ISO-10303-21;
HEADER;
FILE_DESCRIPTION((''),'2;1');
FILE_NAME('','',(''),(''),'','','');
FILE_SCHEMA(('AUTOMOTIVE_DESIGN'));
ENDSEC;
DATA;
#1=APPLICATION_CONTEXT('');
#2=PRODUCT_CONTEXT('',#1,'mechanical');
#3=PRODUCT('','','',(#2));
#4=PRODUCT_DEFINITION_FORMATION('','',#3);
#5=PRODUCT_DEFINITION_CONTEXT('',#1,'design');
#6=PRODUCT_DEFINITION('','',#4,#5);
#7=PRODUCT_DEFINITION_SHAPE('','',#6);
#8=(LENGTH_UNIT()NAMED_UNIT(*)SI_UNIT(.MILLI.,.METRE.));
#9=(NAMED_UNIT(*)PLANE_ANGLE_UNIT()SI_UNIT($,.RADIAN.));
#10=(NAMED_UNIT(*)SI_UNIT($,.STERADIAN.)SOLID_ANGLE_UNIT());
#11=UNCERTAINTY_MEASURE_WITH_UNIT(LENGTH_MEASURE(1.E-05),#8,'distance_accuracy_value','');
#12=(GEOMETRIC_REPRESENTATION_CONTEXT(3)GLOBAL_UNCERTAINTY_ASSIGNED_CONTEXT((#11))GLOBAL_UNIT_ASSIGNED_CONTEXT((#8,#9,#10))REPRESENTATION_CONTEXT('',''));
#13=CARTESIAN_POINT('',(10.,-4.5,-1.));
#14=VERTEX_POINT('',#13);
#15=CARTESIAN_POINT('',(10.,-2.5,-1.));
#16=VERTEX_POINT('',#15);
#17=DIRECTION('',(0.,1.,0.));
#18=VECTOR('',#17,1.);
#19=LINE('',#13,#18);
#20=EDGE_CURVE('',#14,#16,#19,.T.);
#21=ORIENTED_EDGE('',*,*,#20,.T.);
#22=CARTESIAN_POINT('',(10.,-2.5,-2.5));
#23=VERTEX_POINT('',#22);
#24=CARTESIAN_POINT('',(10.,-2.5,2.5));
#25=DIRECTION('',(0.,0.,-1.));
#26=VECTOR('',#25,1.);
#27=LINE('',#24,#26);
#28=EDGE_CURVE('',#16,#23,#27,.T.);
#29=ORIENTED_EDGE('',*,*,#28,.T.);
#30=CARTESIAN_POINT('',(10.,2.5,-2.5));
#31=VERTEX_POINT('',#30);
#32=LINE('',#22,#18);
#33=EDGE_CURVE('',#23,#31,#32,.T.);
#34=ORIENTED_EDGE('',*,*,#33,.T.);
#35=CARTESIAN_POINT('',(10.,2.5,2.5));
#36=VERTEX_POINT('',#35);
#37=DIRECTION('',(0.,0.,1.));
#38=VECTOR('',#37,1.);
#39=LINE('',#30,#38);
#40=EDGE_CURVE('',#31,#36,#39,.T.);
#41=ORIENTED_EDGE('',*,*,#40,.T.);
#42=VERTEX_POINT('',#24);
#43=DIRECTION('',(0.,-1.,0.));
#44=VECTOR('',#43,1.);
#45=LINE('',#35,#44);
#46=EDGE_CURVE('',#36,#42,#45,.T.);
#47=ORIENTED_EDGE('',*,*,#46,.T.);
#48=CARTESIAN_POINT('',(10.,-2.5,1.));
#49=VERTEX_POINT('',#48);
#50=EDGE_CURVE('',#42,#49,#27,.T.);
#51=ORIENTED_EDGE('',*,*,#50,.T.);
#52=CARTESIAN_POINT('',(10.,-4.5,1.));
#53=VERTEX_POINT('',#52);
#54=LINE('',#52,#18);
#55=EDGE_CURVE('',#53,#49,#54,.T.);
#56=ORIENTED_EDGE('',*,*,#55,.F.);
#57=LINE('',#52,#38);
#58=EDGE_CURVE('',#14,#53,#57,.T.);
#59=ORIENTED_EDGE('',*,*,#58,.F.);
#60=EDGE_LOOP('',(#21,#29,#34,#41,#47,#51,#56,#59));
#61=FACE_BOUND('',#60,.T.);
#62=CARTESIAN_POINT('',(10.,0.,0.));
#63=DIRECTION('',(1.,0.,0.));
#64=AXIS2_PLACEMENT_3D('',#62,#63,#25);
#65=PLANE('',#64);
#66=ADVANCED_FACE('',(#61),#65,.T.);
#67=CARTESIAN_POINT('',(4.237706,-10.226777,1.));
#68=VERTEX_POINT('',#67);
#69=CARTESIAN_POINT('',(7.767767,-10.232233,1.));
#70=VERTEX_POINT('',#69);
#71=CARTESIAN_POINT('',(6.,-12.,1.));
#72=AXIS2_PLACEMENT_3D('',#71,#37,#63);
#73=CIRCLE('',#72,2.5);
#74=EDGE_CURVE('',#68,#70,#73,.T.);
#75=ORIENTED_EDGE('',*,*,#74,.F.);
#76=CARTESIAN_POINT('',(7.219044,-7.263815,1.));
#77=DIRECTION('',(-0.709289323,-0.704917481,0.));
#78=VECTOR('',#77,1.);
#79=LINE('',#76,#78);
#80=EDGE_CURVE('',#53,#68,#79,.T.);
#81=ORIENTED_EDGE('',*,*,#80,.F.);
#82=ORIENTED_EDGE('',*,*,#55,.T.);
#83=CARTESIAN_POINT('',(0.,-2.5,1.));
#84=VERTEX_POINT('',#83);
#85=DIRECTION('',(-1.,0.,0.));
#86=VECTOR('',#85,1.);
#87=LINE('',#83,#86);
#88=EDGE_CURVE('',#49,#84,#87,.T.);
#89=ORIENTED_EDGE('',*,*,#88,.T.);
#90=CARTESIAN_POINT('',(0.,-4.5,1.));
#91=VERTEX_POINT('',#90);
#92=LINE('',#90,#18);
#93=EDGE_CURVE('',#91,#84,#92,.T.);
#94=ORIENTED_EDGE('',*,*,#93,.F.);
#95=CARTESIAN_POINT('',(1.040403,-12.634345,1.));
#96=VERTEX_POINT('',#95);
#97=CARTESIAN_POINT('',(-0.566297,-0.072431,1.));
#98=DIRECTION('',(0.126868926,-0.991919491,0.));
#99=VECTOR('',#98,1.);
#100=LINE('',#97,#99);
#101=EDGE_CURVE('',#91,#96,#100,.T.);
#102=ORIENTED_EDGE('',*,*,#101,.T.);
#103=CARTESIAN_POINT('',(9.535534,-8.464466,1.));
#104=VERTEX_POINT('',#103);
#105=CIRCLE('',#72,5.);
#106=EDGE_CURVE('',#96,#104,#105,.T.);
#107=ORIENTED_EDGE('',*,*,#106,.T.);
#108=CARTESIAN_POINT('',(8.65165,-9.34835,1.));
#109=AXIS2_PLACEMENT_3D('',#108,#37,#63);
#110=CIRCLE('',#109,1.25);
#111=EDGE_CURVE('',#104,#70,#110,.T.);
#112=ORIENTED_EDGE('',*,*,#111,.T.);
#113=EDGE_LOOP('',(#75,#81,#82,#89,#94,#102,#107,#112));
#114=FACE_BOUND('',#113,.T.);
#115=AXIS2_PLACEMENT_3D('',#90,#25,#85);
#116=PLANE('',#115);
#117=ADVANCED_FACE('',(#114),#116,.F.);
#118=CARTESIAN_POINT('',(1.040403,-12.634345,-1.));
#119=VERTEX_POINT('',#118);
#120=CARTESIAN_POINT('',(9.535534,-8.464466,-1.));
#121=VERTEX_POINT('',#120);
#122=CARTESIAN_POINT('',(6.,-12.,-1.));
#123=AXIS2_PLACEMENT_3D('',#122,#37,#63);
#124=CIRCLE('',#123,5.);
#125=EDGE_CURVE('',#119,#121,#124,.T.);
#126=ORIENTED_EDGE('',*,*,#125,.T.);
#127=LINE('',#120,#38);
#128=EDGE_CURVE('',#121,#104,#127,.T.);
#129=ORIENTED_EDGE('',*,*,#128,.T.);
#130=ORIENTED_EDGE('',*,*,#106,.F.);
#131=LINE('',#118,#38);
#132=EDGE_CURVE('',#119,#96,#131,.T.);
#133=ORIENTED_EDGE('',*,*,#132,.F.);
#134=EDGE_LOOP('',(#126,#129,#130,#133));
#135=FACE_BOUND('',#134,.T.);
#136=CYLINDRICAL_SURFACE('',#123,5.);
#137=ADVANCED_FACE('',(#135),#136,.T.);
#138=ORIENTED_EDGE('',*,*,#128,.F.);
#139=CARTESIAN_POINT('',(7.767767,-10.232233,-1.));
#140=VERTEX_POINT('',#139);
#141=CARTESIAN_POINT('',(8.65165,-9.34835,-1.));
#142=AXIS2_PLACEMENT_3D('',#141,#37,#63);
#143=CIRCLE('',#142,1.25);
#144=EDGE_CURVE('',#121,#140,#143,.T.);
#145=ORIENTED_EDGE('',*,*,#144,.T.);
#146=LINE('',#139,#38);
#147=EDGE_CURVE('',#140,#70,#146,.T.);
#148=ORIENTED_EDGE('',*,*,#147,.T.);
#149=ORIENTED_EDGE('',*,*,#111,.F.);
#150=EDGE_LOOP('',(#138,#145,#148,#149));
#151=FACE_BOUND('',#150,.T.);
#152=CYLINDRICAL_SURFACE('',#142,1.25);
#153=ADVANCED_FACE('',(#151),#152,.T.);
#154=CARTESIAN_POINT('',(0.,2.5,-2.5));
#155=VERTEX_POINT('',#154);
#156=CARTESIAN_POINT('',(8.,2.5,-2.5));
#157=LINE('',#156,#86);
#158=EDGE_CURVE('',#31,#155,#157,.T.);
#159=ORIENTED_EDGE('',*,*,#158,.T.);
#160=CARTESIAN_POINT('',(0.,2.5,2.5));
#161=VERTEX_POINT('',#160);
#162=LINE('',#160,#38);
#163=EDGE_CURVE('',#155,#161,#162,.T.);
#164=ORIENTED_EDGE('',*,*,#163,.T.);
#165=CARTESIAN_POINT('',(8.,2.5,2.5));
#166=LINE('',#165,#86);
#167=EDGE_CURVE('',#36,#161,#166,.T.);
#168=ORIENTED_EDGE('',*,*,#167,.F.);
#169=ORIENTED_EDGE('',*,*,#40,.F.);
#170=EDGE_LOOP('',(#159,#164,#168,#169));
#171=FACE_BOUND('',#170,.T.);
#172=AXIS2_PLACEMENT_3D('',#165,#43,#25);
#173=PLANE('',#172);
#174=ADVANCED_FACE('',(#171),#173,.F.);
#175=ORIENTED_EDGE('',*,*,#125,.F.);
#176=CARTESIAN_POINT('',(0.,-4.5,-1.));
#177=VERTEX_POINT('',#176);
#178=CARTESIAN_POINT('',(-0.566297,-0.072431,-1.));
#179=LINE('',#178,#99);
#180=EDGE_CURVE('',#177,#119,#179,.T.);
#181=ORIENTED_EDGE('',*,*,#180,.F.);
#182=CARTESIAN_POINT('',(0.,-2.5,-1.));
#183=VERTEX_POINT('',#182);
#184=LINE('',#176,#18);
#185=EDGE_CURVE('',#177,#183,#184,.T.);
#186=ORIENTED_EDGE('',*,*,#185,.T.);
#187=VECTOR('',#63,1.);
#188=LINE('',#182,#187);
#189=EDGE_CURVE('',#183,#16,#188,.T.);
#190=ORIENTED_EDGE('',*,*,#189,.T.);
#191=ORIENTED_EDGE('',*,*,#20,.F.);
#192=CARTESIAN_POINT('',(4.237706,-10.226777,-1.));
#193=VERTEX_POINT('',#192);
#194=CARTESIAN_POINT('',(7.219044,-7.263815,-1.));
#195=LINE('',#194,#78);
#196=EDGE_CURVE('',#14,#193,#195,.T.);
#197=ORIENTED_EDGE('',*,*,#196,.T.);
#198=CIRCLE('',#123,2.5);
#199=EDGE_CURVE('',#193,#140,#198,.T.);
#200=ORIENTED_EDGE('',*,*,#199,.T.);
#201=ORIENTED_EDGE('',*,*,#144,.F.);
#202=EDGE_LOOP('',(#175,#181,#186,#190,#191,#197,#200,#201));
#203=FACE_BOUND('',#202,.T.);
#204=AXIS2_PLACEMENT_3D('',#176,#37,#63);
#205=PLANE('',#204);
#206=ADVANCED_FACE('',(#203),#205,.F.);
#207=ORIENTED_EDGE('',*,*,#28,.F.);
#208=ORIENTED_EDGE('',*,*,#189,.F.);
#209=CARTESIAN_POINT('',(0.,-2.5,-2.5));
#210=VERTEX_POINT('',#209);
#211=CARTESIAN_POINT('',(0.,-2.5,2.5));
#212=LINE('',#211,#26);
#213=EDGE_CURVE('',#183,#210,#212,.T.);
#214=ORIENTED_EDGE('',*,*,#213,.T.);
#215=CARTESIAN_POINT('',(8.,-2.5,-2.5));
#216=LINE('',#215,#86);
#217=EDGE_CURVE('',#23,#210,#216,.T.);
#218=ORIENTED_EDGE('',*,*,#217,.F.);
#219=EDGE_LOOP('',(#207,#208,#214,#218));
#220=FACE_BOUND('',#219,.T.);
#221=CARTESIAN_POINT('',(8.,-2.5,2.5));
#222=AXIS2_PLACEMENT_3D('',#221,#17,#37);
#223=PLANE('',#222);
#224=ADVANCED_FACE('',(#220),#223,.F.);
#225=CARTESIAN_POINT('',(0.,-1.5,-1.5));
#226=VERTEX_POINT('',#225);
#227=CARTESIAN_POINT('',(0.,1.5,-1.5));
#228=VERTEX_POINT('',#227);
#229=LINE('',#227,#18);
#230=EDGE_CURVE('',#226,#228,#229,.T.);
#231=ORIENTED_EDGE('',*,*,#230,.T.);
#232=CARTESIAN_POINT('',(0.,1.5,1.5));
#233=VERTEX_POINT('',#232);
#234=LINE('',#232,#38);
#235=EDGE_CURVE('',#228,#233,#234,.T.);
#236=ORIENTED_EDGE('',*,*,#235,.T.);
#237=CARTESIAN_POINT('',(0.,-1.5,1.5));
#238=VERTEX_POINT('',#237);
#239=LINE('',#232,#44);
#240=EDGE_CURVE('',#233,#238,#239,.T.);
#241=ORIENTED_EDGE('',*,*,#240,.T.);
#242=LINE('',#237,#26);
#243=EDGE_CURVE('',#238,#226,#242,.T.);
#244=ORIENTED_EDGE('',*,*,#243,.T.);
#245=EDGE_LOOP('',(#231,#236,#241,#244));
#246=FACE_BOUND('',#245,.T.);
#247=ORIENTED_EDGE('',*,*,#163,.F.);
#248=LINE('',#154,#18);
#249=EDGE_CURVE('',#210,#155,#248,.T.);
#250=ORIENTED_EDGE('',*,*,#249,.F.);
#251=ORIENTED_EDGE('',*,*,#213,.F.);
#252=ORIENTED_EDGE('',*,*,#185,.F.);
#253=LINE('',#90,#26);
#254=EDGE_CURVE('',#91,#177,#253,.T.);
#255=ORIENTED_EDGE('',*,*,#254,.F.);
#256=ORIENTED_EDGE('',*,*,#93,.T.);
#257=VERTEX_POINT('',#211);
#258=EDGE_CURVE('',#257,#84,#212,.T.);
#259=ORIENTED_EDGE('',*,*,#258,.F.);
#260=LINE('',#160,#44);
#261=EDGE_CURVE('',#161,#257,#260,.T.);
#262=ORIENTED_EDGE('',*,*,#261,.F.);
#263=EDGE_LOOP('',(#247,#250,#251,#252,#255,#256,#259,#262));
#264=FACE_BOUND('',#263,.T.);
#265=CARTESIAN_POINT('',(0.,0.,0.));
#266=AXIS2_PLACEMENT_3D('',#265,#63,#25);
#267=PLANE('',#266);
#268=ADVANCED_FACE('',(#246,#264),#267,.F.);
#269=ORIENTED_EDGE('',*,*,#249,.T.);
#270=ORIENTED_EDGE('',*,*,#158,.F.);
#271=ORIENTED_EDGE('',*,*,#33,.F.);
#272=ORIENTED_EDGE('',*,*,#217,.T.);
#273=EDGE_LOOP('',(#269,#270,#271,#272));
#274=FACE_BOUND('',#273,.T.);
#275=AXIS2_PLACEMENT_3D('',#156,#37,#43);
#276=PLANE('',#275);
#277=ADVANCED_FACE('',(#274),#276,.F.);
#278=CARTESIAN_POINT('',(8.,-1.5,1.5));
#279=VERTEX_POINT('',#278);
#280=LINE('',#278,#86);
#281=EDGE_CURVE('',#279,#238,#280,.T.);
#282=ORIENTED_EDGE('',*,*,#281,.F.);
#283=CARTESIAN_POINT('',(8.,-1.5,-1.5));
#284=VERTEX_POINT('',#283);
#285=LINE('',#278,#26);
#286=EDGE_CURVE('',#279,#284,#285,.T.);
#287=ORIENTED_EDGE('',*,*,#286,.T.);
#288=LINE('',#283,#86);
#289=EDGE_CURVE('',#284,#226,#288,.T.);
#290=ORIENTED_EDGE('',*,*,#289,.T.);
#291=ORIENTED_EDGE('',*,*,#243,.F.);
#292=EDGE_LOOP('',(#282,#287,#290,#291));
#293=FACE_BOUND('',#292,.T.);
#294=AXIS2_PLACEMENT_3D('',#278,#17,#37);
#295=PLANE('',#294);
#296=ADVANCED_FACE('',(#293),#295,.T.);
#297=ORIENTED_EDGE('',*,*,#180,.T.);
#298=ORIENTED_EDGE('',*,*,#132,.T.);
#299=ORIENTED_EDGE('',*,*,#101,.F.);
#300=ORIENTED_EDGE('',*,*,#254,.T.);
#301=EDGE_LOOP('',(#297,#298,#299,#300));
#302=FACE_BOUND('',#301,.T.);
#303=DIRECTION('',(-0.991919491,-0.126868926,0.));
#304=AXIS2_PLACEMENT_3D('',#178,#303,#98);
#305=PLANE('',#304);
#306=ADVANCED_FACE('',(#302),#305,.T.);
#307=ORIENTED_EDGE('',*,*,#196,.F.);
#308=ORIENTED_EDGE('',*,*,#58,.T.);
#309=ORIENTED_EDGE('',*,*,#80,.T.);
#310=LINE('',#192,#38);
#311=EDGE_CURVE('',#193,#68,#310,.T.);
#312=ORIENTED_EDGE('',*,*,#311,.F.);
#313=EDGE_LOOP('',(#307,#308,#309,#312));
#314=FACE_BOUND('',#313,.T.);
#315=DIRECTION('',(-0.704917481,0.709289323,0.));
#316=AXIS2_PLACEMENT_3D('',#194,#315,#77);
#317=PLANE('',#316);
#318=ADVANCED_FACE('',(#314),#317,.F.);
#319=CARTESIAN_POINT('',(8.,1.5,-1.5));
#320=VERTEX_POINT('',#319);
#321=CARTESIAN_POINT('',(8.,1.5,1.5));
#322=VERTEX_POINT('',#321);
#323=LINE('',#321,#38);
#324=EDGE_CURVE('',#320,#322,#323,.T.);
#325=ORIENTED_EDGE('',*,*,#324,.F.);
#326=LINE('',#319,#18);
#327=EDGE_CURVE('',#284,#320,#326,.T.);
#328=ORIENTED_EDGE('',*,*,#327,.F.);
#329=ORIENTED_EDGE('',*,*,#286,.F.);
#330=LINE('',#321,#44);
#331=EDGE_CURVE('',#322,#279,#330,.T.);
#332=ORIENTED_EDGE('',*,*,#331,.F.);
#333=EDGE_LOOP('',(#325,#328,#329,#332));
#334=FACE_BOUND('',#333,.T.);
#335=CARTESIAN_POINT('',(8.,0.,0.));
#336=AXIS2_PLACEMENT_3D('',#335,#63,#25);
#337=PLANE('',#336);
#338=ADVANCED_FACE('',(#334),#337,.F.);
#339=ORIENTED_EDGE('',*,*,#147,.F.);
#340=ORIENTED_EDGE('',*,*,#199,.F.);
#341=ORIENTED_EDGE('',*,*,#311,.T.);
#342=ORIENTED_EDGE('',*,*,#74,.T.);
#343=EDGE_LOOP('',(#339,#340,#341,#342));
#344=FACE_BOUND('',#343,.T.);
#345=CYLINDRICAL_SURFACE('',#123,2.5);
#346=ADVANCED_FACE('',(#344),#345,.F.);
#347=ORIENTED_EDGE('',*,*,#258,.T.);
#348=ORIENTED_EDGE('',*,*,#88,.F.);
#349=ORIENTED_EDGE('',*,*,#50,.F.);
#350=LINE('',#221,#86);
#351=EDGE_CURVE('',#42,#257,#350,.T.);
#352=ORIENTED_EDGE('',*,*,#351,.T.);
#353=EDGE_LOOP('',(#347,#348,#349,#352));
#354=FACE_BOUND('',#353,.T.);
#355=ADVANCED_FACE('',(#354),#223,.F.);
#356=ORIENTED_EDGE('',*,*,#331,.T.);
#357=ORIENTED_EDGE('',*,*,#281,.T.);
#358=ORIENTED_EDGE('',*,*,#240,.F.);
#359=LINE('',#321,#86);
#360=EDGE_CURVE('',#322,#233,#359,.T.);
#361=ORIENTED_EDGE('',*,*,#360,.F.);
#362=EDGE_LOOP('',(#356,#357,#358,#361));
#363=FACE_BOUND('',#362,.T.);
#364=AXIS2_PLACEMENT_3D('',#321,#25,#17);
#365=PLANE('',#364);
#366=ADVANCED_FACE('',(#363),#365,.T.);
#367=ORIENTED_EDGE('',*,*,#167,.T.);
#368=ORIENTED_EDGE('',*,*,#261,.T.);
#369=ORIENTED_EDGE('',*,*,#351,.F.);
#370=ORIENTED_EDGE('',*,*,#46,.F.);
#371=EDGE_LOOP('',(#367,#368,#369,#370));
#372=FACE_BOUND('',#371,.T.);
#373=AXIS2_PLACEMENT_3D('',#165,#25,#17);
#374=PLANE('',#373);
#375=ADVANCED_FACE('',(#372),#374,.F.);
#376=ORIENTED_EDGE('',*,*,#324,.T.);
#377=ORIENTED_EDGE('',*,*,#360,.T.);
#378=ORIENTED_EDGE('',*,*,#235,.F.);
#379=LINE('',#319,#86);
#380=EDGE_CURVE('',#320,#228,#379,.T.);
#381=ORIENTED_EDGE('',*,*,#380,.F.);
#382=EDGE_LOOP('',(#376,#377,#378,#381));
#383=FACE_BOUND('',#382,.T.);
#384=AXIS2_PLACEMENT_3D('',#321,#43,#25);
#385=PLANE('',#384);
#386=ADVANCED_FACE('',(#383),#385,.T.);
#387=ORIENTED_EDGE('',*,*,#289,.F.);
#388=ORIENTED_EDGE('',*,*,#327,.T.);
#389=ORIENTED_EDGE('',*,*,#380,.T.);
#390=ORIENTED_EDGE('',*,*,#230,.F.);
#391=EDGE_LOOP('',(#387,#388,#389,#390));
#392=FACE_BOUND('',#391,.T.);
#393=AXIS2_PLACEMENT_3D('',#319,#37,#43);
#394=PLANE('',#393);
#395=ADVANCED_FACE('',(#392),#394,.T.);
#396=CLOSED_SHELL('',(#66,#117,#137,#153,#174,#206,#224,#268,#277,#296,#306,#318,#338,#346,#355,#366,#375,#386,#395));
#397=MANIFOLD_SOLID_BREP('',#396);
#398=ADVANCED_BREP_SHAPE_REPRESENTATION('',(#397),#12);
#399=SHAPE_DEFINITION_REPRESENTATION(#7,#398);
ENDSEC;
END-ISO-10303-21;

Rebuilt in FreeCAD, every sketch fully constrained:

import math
import FreeCAD as App
import Part
import Sketcher
from FreeCAD import Vector


def add_polygon(sketch, points):
    """Adds a closed chain of lines whose ends are joined by coincident constraints."""
    first, n = sketch.GeometryCount, len(points)
    for a, b in zip(points, points[1:] + points[:1]):
        sketch.addGeometry(Part.LineSegment(App.Vector(*a, 0), App.Vector(*b, 0)), False)
    for i in range(n):
        sketch.addConstraint(Sketcher.Constraint("Coincident", first + i, 2, first + (i + 1) % n, 1))

doc = App.newDocument("Part")
body = doc.addObject("PartDesign::Body", "Body")

# Sketch on YZ plane
sketch1 = body.newObject("Sketcher::SketchObject", "Sketch")
sketch1.AttachmentSupport = (doc.getObject("YZ_Plane"), [""])
sketch1.MapMode = "FlatFace"
add_polygon(sketch1, [(2.5, 2.5), (-2.5, 2.5), (-2.5, -2.5), (2.5, -2.5)])  # lines 0-3
add_polygon(sketch1, [(-1.5, -1.5), (-1.5, 1.5), (1.5, 1.5), (1.5, -1.5)])  # lines 4-7
sketch1.addConstraint(Sketcher.Constraint("Horizontal", 0))
sketch1.addConstraint(Sketcher.Constraint("Vertical", 1))
sketch1.addConstraint(Sketcher.Constraint("Horizontal", 2))
sketch1.addConstraint(Sketcher.Constraint("Vertical", 3))
sketch1.addConstraint(Sketcher.Constraint("Vertical", 4))
sketch1.addConstraint(Sketcher.Constraint("Horizontal", 5))
sketch1.addConstraint(Sketcher.Constraint("Vertical", 6))
sketch1.addConstraint(Sketcher.Constraint("Horizontal", 7))
sketch1.addConstraint(Sketcher.Constraint("Symmetric", 0, 2, 2, 2, -1, 1))
sketch1.addConstraint(Sketcher.Constraint("Symmetric", 4, 2, 6, 2, -1, 1))
sketch1.addConstraint(Sketcher.Constraint("Equal", 2, 1))
sketch1.addConstraint(Sketcher.Constraint("Equal", 7, 4))
sketch1.addConstraint(Sketcher.Constraint("DistanceX", 0, 2, 0, 1, 5.0))
sketch1.addConstraint(Sketcher.Constraint("DistanceX", 5, 1, 5, 2, 3.0))
pad1 = body.newObject("PartDesign::Pad", "Pad")
pad1.Profile = sketch1
pad1.Length = 8

# Sketch on YZ plane
sketch2 = body.newObject("Sketcher::SketchObject", "Sketch001")
sketch2.AttachmentSupport = (doc.getObject("YZ_Plane"), [""])
sketch2.MapMode = "FlatFace"
sketch2.AttachmentOffset = App.Placement(Vector(0, 0, 8), App.Rotation())
add_polygon(sketch2, [(2, 2), (-2, 2), (-2, -2), (2, -2)])  # lines 0-3
sketch2.addConstraint(Sketcher.Constraint("Horizontal", 0))
sketch2.addConstraint(Sketcher.Constraint("Vertical", 1))
sketch2.addConstraint(Sketcher.Constraint("Horizontal", 2))
sketch2.addConstraint(Sketcher.Constraint("Vertical", 3))
sketch2.addConstraint(Sketcher.Constraint("Symmetric", 0, 2, 2, 2, -1, 1))
sketch2.addConstraint(Sketcher.Constraint("Equal", 2, 1))
sketch2.addConstraint(Sketcher.Constraint("DistanceX", 0, 2, 0, 1, 5.0))
pad2 = body.newObject("PartDesign::Pad", "Pad001")
pad2.Profile = sketch2
pad2.Length = 2

# Sketch on XZ plane
sketch3 = body.newObject("Sketcher::SketchObject", "Sketch002")
sketch3.AttachmentSupport = (doc.getObject("XZ_Plane"), [""])
sketch3.MapMode = "FlatFace"
sketch3.AttachmentOffset = App.Placement(Vector(0, 0, 2.5), App.Rotation())
add_polygon(sketch3, [(0, 1), (0, -1), (10, -1), (10, 1)])  # lines 0-3
sketch3.addConstraint(Sketcher.Constraint("Vertical", 0))
sketch3.addConstraint(Sketcher.Constraint("Horizontal", 1))
sketch3.addConstraint(Sketcher.Constraint("Vertical", 2))
sketch3.addConstraint(Sketcher.Constraint("Horizontal", 3))
sketch3.addConstraint(Sketcher.Constraint("Symmetric", 0, 2, 3, 2, -1, 1))
sketch3.addConstraint(Sketcher.Constraint("DistanceX", 1, 1, 1, 2, 10.0))
sketch3.addConstraint(Sketcher.Constraint("DistanceY", 0, 2, 0, 1, 2.0))
pad3 = body.newObject("PartDesign::Pad", "Pad002")
pad3.Profile = sketch3
pad3.Length = 2

# Sketch on XY plane
sketch4 = body.newObject("Sketcher::SketchObject", "Sketch003")
sketch4.AttachmentSupport = (doc.getObject("XY_Plane"), [""])
sketch4.MapMode = "FlatFace"
sketch4.AttachmentOffset = App.Placement(Vector(0, 0, 1), App.Rotation())
sketch4.addGeometry(Part.LineSegment(Vector(10, -4.5, 0), Vector(0, -4.5, 0)), False)
sketch4.addGeometry(Part.LineSegment(Vector(0, -4.5, 0), Vector(1, -12.6, 0)), False)
sketch4.addGeometry(Part.ArcOfCircle(Part.Circle(Vector(6, -12, 0), Vector(0, 0, 1), 5), math.radians(-173), math.radians(45)), False)
sketch4.addGeometry(Part.ArcOfCircle(Part.Circle(Vector(8.7, -9.3, 0), Vector(0, 0, 1), 1.2), math.radians(45), math.radians(225)), False)
sketch4.addGeometry(Part.ArcOfCircle(Part.Circle(Vector(6, -12, 0), Vector(0, 0, 1), 2.5), math.radians(135), math.radians(405)), False)
sketch4.addGeometry(Part.LineSegment(Vector(4.2, -10.2, 0), Vector(7.3, -7.2, 0)), False)
sketch4.addGeometry(Part.LineSegment(Vector(7.3, -7.2, 0), Vector(10, -4.5, 0)), False)
sketch4.addConstraint(Sketcher.Constraint("Coincident", 0, 2, 1, 1))
sketch4.addConstraint(Sketcher.Constraint("Tangent", 1, 2, 2, 1))
sketch4.addConstraint(Sketcher.Constraint("Tangent", 2, 2, 3, 1))
sketch4.addConstraint(Sketcher.Constraint("Tangent", 3, 2, 4, 2))
sketch4.addConstraint(Sketcher.Constraint("Tangent", 4, 1, 5, 1))
sketch4.addConstraint(Sketcher.Constraint("Coincident", 5, 2, 6, 1))
sketch4.addConstraint(Sketcher.Constraint("Coincident", 6, 2, 0, 1))
sketch4.addConstraint(Sketcher.Constraint("Horizontal", 0))
sketch4.addConstraint(Sketcher.Constraint("Coincident", 4, 3, 2, 3))
sketch4.addConstraint(Sketcher.Constraint("PointOnObject", 0, 2, -2))
sketch4.addConstraint(Sketcher.Constraint("Parallel", 5, 6))
sketch4.addConstraint(Sketcher.Constraint("Radius", 2, 5.0))
sketch4.addConstraint(Sketcher.Constraint("Radius", 4, 2.5))
sketch4.addConstraint(Sketcher.Constraint("DistanceX", 0, 2, 0, 1, 10.0))
sketch4.addConstraint(Sketcher.Constraint("DistanceX", -1, 1, 2, 3, 6.0))
sketch4.addConstraint(Sketcher.Constraint("DistanceY", 2, 3, -1, 1, 12.0))
sketch4.addConstraint(Sketcher.Constraint("DistanceY", 0, 2, -1, 1, 4.5))
sketch4.addConstraint(Sketcher.Constraint("Distance", 6, 3.793911))
sketch4.addConstraint(Sketcher.Constraint("DistanceX", -1, 1, 3, 3, 8.65165))
pad4 = body.newObject("PartDesign::Pad", "Pad003")
pad4.Profile = sketch4
pad4.Length = 2
pad4.Reversed = True

doc.recompute()
